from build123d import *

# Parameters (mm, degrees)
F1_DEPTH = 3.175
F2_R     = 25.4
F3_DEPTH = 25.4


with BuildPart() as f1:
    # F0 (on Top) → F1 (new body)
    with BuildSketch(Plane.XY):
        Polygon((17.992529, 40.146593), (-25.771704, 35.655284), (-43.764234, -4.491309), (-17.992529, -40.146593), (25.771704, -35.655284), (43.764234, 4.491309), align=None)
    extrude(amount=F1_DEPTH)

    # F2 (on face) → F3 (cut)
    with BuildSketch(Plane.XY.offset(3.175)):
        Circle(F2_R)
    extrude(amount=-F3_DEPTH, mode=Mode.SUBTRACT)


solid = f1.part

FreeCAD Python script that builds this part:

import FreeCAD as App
import Part
import Sketcher
from FreeCAD import Vector
Q = App.Units.Quantity


def add_polygon(sketch, points):
    """Adds a closed chain of lines whose ends are joined by coincident constraints."""
    first, n = sketch.GeometryCount, len(points)
    for a, b in zip(points, points[1:] + points[:1]):
        sketch.addGeometry(Part.LineSegment(App.Vector(*a, 0), App.Vector(*b, 0)), False)
    for i in range(n):
        sketch.addConstraint(Sketcher.Constraint("Coincident", first + i, 2, first + (i + 1) % n, 1))

doc = App.newDocument("Part")
body = doc.addObject("PartDesign::Body", "Body")

# Sketch on XY plane
sketch1 = body.newObject("Sketcher::SketchObject", "Sketch")
sketch1.AttachmentSupport = (doc.getObject("XY_Plane"), [""])
sketch1.MapMode = "FlatFace"
add_polygon(sketch1, [(17.992529, 40.146593), (-25.771704, 35.655284), (-43.764234, -4.491309), (-17.992529, -40.146593), (25.771704, -35.655284), (43.764234, 4.491309)])  # lines 0-5
sketch1.addConstraint(Sketcher.Constraint("Symmetric", 0, 2, 3, 2, -1, 1))
sketch1.addConstraint(Sketcher.Constraint("Symmetric", 1, 2, 4, 2, -1, 1))
sketch1.addConstraint(Sketcher.Constraint("Symmetric", 2, 2, 5, 2, -1, 1))
sketch1.addConstraint(Sketcher.Constraint("Equal", 0, 1))
sketch1.addConstraint(Sketcher.Constraint("Equal", 1, 2))
sketch1.addConstraint(Sketcher.Constraint("Distance", 0, 43.99409))
sketch1.addConstraint(Sketcher.Constraint("DistanceY", 1, 2, -1, 1, 4.491309))
sketch1.addConstraint(Sketcher.Constraint("DistanceX", 2, 2, -1, 1, 17.992529))
sketch1.addConstraint(Sketcher.Constraint("DistanceX", 1, 2, 0, 2, 17.99253))
pad1 = body.newObject("PartDesign::Pad", "Pad")
pad1.Profile = sketch1
pad1.Length = Q("0.125 in")

# Sketch on XY plane
sketch2 = body.newObject("Sketcher::SketchObject", "Sketch001")
sketch2.AttachmentSupport = (doc.getObject("XY_Plane"), [""])
sketch2.MapMode = "FlatFace"
sketch2.AttachmentOffset = App.Placement(Vector(0, 0, 0.125 * 25.4), App.Rotation())
sketch2.addGeometry(Part.Circle(Vector(0, 0, 0), Vector(0, 0, 1), 25.4), False)
sketch2.addConstraint(Sketcher.Constraint("Coincident", 0, 3, -1, 1))
sketch2.addConstraint(Sketcher.Constraint("Diameter", 0, Q("2 in")))
pocket1 = body.newObject("PartDesign::Pocket", "Pocket")
pocket1.Profile = sketch2
pocket1.Length = Q("1 in")

doc.recompute()
